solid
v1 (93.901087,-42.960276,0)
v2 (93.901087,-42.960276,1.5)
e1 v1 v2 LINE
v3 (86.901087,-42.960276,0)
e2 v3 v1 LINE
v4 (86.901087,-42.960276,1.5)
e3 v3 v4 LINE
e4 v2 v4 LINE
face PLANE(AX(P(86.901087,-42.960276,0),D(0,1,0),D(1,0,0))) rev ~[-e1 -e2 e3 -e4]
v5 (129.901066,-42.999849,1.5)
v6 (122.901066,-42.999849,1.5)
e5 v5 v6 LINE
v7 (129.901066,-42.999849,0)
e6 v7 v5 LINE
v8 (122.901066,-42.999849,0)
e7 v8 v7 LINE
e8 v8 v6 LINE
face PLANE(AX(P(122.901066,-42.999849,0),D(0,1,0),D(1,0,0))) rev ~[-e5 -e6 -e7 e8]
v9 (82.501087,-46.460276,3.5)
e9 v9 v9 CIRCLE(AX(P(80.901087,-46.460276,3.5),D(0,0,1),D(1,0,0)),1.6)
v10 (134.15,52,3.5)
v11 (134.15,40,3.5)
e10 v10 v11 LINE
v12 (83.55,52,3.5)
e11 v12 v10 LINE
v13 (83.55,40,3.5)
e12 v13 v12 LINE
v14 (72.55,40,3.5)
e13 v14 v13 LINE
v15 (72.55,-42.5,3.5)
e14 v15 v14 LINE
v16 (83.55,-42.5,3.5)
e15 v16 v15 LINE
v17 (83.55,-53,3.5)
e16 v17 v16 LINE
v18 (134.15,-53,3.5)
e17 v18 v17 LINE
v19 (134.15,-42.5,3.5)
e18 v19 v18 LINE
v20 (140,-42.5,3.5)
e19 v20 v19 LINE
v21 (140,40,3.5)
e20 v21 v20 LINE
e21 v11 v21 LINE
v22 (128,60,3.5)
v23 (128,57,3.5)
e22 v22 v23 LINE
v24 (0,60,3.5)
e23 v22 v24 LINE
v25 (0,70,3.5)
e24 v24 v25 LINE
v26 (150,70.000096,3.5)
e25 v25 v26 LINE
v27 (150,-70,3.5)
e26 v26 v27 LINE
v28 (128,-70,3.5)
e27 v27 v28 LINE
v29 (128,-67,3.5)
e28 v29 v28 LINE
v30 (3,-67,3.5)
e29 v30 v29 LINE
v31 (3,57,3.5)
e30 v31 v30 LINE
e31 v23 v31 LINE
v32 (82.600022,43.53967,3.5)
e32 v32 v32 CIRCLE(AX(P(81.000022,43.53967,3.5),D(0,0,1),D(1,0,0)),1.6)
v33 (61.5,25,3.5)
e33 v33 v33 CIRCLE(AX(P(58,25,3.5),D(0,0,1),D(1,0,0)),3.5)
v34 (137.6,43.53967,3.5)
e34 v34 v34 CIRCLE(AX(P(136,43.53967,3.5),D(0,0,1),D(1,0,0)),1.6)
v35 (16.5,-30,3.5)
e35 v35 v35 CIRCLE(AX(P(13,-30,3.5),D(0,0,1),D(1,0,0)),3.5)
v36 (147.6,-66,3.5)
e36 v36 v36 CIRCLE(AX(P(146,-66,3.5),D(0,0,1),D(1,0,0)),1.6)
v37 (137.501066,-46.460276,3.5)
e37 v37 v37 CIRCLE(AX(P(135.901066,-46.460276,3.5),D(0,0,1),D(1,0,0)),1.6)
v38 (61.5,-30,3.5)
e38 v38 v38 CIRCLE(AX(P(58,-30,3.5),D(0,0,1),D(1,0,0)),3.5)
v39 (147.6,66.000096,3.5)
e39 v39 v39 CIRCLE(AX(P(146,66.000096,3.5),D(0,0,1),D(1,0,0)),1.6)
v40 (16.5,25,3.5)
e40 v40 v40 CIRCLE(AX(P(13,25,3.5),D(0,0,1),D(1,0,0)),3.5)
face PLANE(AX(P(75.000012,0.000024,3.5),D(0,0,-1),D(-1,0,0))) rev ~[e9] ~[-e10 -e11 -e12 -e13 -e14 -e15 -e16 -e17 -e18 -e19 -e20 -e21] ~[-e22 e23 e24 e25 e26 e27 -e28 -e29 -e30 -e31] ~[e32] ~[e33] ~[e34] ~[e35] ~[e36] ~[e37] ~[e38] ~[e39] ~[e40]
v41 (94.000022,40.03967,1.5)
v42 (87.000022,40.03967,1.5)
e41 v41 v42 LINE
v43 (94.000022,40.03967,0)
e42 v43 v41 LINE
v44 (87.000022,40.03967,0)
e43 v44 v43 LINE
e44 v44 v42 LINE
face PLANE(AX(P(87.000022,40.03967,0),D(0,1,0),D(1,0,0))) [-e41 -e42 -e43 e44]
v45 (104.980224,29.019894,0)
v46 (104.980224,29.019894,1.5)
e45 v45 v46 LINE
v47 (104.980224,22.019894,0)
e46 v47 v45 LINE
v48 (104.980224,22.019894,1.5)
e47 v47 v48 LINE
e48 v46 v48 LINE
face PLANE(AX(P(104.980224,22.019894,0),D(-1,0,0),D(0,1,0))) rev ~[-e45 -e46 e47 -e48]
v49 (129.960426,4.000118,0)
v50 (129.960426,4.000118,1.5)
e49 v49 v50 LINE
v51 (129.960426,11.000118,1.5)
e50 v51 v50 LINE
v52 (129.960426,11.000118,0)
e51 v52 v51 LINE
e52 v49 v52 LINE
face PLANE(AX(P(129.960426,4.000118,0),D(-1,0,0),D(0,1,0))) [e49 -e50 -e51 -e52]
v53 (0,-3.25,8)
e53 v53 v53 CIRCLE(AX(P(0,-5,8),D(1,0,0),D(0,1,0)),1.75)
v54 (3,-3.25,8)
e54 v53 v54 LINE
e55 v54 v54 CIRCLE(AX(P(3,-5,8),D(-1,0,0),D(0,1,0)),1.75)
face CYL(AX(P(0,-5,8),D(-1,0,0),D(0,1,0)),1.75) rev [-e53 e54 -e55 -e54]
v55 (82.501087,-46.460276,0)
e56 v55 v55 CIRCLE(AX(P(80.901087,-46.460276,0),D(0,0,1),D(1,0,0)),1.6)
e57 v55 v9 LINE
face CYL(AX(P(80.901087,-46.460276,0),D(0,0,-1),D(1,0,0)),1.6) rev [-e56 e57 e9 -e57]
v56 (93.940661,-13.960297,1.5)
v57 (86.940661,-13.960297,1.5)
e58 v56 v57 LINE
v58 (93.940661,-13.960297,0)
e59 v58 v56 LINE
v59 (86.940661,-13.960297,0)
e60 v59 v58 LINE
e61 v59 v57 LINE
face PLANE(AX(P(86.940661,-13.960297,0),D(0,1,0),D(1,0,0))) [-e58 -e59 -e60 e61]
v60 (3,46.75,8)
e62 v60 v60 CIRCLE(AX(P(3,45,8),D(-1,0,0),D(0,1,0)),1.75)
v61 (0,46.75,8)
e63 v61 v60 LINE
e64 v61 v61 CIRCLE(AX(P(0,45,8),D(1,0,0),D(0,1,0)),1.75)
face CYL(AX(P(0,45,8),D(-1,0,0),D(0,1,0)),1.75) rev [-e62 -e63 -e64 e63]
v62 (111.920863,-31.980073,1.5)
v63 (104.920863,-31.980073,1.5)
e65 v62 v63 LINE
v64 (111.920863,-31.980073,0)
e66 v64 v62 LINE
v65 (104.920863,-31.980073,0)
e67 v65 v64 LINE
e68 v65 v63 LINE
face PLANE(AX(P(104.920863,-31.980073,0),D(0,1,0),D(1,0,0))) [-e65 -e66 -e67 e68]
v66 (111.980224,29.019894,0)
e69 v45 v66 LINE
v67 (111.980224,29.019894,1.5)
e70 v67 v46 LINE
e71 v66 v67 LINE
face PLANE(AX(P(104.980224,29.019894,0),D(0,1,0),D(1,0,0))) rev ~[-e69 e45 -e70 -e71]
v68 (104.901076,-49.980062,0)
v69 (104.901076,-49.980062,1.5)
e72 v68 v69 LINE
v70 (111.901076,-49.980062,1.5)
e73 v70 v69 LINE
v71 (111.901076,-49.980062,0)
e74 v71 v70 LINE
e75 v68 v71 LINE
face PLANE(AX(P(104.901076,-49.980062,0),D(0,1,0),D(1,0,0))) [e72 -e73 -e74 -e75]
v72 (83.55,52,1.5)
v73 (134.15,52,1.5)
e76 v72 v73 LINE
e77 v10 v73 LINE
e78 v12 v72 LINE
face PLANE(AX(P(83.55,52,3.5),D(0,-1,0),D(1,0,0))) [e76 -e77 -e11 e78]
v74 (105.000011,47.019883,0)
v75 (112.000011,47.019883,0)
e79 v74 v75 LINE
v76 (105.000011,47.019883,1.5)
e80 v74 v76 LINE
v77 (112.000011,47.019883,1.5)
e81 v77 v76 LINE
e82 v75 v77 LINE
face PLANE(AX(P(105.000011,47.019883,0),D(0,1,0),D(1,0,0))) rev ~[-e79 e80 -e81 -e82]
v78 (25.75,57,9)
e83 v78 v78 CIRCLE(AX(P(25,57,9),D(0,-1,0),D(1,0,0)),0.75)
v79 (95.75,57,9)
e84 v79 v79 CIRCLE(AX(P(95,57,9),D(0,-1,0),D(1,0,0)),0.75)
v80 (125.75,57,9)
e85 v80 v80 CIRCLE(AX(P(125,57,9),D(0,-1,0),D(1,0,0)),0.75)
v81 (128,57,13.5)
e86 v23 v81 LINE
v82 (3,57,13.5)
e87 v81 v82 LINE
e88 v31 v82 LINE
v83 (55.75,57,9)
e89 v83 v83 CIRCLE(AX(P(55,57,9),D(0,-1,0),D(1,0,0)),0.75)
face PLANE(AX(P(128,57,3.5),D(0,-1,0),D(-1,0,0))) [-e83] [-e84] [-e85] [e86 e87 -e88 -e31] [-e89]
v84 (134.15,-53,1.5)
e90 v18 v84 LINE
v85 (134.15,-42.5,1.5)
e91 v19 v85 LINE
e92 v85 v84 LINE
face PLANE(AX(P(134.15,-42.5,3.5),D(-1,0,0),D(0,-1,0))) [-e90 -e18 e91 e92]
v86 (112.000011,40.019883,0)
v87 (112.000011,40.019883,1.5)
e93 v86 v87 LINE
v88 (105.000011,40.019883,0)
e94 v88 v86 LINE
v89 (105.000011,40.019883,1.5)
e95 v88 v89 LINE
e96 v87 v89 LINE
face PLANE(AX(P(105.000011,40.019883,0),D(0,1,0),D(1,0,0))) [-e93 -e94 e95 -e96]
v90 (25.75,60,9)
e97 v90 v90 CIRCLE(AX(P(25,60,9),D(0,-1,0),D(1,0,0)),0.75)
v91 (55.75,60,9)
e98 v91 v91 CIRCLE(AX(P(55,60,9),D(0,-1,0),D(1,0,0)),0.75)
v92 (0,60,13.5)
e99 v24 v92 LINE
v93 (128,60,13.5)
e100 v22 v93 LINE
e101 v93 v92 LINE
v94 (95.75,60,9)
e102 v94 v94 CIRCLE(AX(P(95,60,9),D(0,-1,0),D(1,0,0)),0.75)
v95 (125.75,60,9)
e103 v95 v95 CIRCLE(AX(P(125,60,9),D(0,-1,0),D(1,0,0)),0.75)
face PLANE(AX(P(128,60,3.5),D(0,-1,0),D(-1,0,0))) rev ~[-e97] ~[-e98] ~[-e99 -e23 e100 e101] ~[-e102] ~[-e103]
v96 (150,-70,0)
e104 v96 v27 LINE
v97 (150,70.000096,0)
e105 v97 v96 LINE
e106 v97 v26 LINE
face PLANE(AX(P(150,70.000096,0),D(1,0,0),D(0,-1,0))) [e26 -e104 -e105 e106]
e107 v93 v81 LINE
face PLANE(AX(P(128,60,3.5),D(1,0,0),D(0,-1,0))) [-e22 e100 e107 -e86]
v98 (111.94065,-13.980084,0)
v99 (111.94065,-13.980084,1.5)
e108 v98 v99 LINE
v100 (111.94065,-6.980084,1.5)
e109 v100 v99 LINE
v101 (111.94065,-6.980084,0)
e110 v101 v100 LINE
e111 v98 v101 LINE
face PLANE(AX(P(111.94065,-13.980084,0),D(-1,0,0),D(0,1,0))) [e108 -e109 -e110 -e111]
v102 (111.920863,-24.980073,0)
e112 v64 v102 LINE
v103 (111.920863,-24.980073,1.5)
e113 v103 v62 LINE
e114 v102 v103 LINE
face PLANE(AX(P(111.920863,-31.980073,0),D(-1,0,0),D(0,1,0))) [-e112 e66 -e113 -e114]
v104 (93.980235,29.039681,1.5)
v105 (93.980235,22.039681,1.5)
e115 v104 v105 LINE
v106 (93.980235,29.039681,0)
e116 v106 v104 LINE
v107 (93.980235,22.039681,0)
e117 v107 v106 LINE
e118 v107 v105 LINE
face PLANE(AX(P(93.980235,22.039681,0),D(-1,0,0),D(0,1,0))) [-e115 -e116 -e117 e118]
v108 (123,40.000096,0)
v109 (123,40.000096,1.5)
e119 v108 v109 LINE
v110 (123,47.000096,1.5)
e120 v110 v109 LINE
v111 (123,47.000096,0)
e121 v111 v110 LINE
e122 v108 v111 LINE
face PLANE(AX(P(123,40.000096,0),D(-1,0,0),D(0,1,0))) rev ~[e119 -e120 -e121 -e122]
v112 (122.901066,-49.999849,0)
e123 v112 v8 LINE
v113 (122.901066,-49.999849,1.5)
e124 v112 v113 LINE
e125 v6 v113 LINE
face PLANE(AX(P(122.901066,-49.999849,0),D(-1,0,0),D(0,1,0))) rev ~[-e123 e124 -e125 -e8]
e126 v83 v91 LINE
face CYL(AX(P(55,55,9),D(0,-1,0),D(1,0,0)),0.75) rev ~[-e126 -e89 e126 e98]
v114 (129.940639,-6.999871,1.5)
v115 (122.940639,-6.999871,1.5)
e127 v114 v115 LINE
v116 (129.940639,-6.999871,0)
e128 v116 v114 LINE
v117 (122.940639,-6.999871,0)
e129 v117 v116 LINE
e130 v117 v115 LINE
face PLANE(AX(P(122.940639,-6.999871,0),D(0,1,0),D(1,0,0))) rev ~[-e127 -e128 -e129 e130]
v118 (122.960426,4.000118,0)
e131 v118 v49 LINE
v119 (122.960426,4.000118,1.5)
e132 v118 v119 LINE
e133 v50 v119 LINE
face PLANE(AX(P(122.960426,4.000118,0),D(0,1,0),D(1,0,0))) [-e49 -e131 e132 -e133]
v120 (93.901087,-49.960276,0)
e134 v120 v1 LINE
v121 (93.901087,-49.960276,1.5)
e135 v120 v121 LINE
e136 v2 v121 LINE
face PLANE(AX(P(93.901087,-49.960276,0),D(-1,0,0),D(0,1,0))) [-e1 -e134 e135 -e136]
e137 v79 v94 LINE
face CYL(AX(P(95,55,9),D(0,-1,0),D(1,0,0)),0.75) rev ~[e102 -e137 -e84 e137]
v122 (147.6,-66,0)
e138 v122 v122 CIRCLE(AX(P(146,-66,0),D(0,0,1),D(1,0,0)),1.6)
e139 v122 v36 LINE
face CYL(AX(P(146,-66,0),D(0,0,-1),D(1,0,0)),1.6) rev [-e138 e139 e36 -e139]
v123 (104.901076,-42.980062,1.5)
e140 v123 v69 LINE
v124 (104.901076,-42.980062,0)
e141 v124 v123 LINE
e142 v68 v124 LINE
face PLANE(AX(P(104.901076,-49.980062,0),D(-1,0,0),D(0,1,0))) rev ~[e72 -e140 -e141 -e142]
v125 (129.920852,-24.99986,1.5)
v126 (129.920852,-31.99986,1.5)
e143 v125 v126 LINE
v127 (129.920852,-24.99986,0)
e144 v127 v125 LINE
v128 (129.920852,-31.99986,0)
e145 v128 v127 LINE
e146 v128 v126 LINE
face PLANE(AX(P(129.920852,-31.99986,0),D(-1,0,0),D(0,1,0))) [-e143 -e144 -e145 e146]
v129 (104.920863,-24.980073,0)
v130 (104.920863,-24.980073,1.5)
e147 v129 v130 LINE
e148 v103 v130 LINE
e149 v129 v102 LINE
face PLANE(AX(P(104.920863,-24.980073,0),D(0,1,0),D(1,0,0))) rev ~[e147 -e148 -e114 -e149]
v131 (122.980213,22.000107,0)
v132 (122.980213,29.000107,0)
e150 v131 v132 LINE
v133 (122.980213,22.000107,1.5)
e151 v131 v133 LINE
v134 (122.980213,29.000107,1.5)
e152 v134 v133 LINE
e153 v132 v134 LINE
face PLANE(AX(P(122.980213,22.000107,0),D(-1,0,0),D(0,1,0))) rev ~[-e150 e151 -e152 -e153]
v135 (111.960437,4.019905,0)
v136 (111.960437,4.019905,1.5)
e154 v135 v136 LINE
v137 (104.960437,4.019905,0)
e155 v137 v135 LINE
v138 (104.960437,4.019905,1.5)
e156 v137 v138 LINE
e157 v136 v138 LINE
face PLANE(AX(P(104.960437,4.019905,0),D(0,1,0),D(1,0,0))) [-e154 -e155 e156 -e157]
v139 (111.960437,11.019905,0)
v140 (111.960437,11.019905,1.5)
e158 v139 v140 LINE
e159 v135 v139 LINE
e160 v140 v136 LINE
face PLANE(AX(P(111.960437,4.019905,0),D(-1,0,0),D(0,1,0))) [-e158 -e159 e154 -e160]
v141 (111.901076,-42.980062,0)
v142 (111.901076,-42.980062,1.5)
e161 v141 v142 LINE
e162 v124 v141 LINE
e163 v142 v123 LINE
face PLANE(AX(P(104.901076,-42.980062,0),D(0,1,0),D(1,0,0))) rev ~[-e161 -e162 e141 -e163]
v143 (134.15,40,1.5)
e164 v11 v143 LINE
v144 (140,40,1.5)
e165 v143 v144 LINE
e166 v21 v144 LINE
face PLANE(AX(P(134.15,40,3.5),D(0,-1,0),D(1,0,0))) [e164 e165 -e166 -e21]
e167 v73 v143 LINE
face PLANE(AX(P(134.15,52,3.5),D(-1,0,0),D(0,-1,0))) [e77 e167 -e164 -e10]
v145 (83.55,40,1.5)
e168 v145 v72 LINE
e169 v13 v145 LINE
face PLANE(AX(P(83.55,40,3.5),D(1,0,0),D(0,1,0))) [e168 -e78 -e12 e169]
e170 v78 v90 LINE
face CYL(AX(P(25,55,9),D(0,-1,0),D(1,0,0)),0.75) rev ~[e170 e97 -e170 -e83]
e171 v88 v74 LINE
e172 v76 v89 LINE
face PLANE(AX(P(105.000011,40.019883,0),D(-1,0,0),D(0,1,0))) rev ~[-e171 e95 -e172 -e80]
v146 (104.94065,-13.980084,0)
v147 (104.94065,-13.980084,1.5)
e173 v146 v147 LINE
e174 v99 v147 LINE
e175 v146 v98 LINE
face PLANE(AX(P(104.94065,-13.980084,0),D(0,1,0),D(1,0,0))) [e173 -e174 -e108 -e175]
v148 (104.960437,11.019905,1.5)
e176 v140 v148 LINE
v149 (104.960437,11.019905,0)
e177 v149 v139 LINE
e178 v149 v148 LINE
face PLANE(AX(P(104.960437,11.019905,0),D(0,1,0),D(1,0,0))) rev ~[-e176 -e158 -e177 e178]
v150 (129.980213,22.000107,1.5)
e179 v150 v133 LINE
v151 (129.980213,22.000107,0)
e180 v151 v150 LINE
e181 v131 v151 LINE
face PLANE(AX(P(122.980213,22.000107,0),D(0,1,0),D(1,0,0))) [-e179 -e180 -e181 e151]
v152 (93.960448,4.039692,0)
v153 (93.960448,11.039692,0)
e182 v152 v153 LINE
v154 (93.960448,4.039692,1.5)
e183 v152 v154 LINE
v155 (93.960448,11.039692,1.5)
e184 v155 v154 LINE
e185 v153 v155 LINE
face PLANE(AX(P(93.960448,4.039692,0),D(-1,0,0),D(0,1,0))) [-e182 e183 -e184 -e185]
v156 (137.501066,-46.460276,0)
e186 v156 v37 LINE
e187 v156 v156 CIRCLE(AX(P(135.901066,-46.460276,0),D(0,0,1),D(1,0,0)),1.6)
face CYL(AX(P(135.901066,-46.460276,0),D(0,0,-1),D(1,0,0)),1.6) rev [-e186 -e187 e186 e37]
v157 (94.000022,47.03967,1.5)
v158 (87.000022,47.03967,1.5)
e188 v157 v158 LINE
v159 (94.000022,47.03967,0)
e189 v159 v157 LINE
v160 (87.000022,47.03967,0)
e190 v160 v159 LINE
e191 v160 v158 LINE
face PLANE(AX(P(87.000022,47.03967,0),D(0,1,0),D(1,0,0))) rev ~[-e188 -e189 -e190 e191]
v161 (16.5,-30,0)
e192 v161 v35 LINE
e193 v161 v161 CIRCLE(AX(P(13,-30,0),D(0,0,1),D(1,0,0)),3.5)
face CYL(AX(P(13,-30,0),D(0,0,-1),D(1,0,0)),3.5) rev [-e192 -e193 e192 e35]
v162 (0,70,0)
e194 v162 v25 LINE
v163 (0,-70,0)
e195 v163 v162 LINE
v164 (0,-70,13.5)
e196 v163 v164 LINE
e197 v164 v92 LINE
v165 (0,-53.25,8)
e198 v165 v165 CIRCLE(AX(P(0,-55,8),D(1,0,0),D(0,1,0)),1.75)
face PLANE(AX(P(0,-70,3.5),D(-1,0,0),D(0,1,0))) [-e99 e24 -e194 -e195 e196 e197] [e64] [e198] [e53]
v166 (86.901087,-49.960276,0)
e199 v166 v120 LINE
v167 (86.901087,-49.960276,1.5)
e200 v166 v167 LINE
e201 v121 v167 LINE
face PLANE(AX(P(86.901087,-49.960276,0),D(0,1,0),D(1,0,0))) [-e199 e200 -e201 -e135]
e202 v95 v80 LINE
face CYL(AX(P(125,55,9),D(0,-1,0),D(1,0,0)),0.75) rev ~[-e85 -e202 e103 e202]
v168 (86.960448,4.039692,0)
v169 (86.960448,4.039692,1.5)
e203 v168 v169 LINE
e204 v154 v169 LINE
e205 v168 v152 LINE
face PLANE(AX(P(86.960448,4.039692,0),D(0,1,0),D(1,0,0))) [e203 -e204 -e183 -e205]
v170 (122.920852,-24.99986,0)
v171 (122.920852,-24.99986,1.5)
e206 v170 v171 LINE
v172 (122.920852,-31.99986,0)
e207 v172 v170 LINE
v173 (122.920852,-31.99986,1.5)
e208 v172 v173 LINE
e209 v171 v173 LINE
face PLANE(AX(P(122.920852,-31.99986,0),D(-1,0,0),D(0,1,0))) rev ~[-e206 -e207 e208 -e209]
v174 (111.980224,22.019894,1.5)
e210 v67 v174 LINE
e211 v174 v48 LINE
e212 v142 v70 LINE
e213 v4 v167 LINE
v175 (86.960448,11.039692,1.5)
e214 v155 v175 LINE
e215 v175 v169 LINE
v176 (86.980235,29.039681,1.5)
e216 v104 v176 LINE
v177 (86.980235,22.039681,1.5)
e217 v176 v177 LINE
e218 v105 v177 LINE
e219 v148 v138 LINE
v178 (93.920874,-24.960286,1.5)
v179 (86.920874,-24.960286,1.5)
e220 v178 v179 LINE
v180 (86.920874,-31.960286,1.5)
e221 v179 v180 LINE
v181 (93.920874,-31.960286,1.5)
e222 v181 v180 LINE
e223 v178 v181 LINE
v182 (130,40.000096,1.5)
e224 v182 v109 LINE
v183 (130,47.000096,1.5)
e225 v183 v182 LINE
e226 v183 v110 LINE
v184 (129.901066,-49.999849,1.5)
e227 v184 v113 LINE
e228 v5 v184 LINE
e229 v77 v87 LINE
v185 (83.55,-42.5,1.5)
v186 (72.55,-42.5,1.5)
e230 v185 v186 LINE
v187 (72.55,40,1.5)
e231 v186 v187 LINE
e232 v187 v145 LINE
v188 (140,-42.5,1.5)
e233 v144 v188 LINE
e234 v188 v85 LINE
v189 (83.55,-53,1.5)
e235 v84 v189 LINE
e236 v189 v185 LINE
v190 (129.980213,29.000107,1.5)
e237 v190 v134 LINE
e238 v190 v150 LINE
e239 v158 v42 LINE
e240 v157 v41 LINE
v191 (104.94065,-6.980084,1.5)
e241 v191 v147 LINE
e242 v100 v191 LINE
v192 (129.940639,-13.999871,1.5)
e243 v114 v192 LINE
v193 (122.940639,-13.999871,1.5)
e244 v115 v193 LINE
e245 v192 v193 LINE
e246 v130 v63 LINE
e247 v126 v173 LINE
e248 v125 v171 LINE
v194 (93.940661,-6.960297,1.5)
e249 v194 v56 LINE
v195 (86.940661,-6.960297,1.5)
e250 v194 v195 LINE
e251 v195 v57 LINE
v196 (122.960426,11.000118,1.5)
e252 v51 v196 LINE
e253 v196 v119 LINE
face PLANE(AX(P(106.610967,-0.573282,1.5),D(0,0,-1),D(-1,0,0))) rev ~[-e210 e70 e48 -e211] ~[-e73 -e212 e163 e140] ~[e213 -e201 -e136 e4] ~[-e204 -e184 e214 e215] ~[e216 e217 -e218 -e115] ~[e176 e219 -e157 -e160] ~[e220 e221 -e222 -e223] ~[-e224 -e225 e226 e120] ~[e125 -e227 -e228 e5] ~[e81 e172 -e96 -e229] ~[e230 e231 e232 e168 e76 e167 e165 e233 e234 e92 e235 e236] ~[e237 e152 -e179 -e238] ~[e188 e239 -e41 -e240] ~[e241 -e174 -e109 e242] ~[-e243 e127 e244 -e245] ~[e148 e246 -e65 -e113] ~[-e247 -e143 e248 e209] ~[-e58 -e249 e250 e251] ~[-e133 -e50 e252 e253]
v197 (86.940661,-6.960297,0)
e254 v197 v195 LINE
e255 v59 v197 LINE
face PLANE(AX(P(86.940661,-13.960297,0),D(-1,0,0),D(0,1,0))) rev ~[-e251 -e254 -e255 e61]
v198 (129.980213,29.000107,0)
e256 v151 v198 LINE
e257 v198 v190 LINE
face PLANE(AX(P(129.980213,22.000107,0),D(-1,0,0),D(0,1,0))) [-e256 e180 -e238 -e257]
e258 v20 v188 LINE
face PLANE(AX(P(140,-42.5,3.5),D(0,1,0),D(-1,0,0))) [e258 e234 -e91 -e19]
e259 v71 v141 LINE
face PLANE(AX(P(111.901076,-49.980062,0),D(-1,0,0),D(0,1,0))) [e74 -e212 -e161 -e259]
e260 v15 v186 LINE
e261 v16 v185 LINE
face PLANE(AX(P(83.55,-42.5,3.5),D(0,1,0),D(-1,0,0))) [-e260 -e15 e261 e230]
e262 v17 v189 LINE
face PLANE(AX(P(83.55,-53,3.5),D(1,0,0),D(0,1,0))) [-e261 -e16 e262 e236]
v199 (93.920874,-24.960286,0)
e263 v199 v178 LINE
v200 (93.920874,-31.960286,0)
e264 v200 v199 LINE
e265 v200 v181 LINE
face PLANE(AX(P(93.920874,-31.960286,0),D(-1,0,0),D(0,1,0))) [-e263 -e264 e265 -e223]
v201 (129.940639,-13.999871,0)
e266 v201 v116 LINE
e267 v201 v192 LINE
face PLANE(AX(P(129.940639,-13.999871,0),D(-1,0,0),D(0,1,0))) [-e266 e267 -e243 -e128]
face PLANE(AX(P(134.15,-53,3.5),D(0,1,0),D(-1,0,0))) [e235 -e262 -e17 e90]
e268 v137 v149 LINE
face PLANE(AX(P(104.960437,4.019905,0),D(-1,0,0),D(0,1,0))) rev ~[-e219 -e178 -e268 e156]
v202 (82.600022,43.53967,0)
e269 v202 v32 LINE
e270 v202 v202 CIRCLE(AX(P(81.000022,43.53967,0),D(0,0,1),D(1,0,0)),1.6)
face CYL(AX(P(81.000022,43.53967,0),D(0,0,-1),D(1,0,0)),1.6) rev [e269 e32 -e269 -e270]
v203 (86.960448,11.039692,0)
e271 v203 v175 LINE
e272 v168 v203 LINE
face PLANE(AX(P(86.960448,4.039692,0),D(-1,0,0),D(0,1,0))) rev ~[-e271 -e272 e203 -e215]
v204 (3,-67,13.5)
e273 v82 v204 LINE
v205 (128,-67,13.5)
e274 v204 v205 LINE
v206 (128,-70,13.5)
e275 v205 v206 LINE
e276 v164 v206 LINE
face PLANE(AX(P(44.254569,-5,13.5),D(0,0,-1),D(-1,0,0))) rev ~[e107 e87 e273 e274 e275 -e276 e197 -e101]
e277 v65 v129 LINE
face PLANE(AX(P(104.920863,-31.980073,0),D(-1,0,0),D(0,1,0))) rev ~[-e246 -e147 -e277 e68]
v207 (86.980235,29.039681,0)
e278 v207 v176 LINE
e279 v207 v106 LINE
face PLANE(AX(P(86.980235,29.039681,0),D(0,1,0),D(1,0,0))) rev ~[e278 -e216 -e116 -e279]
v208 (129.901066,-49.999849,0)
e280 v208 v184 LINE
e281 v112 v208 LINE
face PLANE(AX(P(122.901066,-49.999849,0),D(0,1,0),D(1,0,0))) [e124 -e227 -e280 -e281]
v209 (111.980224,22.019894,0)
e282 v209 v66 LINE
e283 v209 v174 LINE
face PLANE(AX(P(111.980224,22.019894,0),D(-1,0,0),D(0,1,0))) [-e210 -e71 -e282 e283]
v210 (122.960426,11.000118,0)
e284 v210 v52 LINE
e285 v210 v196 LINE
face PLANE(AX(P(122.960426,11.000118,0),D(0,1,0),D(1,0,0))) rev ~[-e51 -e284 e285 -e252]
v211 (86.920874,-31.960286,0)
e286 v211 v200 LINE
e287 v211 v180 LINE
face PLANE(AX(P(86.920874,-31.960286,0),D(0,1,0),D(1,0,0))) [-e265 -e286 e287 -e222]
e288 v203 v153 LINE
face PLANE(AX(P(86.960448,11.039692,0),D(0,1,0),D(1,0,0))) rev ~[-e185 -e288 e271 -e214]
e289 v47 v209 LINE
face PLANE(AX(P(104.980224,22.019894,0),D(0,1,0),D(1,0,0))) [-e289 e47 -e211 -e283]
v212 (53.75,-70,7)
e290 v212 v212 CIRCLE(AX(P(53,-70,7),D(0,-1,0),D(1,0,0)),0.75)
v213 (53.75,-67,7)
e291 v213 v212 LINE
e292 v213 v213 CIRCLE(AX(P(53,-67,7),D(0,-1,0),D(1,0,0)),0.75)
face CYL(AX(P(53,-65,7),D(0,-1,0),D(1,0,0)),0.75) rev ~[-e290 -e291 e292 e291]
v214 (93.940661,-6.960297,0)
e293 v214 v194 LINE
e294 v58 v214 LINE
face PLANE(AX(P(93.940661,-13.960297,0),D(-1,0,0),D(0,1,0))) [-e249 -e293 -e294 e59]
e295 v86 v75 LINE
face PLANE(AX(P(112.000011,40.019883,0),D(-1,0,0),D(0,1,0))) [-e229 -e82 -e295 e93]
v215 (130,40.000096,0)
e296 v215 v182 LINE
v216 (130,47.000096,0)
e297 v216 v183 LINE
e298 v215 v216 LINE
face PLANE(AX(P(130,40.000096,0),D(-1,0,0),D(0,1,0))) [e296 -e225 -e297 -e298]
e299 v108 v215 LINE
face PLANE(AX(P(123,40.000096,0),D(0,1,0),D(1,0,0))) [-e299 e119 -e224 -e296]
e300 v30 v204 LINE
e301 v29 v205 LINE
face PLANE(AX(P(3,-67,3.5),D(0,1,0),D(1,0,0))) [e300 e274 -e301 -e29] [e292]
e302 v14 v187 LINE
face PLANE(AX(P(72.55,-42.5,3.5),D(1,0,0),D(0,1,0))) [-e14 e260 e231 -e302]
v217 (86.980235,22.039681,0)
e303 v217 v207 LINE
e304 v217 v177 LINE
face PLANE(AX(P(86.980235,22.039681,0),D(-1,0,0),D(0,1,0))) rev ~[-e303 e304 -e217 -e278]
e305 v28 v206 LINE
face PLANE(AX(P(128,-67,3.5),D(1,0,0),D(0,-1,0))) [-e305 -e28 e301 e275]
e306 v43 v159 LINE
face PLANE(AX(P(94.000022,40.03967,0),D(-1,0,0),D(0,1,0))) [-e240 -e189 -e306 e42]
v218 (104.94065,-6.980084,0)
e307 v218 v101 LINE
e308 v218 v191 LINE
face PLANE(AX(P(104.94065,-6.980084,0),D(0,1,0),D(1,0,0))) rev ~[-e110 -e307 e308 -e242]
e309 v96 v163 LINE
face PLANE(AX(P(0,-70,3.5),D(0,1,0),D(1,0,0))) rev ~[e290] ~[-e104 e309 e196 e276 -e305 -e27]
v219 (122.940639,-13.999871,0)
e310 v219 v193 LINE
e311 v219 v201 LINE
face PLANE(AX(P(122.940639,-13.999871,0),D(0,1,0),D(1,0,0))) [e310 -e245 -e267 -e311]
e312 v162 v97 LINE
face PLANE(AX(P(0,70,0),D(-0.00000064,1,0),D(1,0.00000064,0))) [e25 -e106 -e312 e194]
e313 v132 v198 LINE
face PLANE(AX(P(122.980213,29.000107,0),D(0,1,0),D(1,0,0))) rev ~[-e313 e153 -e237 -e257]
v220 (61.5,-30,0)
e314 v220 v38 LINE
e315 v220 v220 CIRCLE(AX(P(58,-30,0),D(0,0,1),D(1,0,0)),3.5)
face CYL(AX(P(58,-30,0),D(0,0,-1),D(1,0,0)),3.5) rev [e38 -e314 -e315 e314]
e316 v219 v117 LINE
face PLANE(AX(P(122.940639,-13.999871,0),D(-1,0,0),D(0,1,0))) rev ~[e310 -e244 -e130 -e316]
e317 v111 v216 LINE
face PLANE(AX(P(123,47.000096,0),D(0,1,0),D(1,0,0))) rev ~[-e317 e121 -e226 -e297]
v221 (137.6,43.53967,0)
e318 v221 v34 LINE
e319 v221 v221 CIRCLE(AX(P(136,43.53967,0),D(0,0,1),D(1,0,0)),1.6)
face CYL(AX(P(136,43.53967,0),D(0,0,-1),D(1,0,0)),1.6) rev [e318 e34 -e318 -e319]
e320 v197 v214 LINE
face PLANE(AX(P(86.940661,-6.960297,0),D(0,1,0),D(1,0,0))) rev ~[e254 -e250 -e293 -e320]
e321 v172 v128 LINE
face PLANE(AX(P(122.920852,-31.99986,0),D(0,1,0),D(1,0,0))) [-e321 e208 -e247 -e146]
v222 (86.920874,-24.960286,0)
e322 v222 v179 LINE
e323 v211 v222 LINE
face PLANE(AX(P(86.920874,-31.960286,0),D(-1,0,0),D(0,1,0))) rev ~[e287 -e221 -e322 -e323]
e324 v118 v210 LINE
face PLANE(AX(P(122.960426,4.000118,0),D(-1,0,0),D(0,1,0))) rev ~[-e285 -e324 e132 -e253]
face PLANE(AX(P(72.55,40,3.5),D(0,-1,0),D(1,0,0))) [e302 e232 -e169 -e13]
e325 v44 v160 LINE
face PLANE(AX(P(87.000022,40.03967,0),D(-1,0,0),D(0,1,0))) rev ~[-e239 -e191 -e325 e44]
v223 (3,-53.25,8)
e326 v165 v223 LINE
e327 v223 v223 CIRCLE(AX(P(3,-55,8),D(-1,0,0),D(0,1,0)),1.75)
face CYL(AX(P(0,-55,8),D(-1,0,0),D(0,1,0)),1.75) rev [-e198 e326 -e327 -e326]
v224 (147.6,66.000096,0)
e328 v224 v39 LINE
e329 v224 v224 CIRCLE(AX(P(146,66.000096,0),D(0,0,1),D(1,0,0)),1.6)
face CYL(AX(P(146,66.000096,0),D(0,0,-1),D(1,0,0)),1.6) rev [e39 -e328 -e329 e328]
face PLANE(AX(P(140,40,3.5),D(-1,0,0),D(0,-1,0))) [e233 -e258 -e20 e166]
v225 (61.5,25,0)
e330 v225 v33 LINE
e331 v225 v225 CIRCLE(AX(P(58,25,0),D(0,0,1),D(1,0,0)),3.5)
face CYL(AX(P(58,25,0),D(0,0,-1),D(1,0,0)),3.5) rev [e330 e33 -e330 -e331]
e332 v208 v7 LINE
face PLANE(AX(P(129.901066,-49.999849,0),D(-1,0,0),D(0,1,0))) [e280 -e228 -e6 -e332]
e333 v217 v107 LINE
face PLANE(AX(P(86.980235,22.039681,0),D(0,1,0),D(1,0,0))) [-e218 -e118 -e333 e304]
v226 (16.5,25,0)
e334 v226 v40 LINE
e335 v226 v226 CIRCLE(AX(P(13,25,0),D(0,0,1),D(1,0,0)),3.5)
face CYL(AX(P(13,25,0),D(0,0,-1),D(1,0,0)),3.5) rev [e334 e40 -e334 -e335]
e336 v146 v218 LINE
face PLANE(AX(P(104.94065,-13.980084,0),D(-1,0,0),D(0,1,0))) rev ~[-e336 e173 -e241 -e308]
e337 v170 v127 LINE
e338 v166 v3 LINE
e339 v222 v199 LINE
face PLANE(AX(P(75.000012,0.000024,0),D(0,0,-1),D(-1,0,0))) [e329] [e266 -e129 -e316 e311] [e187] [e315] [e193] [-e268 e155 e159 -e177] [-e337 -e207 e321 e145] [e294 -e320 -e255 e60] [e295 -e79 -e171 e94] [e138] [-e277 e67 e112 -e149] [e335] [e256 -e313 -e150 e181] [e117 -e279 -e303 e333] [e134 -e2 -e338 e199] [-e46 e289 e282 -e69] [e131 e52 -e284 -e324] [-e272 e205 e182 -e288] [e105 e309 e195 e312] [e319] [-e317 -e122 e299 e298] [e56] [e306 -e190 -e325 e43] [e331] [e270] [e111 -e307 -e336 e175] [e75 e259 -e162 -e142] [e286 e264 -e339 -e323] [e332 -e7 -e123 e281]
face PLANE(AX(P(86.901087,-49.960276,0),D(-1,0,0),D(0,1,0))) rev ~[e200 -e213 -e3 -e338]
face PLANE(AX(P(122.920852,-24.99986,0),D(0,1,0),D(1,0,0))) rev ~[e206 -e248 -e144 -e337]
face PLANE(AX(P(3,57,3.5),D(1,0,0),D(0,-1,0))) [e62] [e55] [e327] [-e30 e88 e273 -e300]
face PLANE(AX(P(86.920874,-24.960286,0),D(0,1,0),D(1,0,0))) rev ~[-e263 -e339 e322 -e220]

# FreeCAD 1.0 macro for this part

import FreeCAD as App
import Part
import Sketcher
from FreeCAD import Vector
Q = App.Units.Quantity


def add_polygon(sketch, points):
    """Adds a closed chain of lines whose ends are joined by coincident constraints."""
    first, n = sketch.GeometryCount, len(points)
    for a, b in zip(points, points[1:] + points[:1]):
        sketch.addGeometry(Part.LineSegment(App.Vector(*a, 0), App.Vector(*b, 0)), False)
    for i in range(n):
        sketch.addConstraint(Sketcher.Constraint("Coincident", first + i, 2, first + (i + 1) % n, 1))

doc = App.newDocument("Part")
params = doc.addObject("Spreadsheet::Sheet", "Params")
for row, (alias, value) in enumerate([
    ("sketch1_diameter", "7 mm"),
    ("sketch1_diameter2", "3.2 mm"),
    ("sketch1_width", "150 mm"),
    ("sketch1_width2", "7 mm"),
    ("sketch1_height", "140 mm"),
    ("pad1_length", "3.5 mm"),
    ("sketch2_width", "128 mm"),
    ("sketch2_width2", "125 mm"),
    ("sketch2_height", "130 mm"),
    ("sketch2_height2", "3 mm"),
    ("pad2_length", "10 mm"),
    ("sketch3_diameter", "1.5 mm"),
    ("pocket1_length", "15 mm"),
    ("sketch4_diameter", "1.5 mm"),
    ("pocket2_length", "20 mm"),
    ("sketch5_diameter", "3.5 mm"),
    ("pocket3_length", "5 mm"),
    ("sketch6_width", "11 mm"),
    ("sketch6_height", "12 mm"),
    ("sketch6_width2", "50.6 mm"),
    ("sketch6_height2", "82.5 mm"),
    ("sketch6_height3", "10.5 mm"),
    ("pocket4_length", "2 mm"),
], start=1):
    params.set(f"A{row}", alias)
    params.set(f"B{row}", "=" + value)
    params.setAlias(f"B{row}", alias)

body = doc.addObject("PartDesign::Body", "Body")

sketch1 = body.newObject("Sketcher::SketchObject", "Sketch")
sketch1.AttachmentSupport = (doc.getObject("XY_Plane"), [""])
sketch1.MapMode = "FlatFace"
add_polygon(sketch1, [(150, 70), (0, 70), (0, -70), (150, -70)])
sketch1.addGeometry(Part.Circle(Vector(146, -66, 0), Vector(0, 0, 1), 1.6), False)
sketch1.addGeometry(Part.Circle(Vector(135.9, -46.5, 0), Vector(0, 0, 1), 1.6), False)
add_polygon(sketch1, [(122.9, -50), (122.9, -43), (129.9, -43), (129.9, -50)])
add_polygon(sketch1, [(104.9, -50), (104.9, -43), (111.9, -43), (111.9, -50)])
add_polygon(sketch1, [(86.9, -50), (86.9, -43), (93.9, -43), (93.9, -50)])
sketch1.addGeometry(Part.Circle(Vector(80.9, -46.5, 0), Vector(0, 0, 1), 1.6), False)
add_polygon(sketch1, [(122.9, -32), (122.9, -25), (129.9, -25), (129.9, -32)])
add_polygon(sketch1, [(122.9, -14), (122.9, -7), (129.9, -7), (129.9, -14)])
add_polygon(sketch1, [(104.9, -32), (104.9, -25), (111.9, -25), (111.9, -32)])
add_polygon(sketch1, [(86.9, -32), (86.9, -25), (93.9, -25), (93.9, -32)])
add_polygon(sketch1, [(104.9, -14), (104.9, -7), (111.9, -7), (111.9, -14)])
add_polygon(sketch1, [(86.9, -14), (86.9, -7), (93.9, -7), (93.9, -14)])
sketch1.addGeometry(Part.Circle(Vector(58, -30, 0), Vector(0, 0, 1), 3.5), False)
sketch1.addGeometry(Part.Circle(Vector(13, -30, 0), Vector(0, 0, 1), 3.5), False)
add_polygon(sketch1, [(123, 4), (123, 11), (130, 11), (130, 4)])
add_polygon(sketch1, [(123, 22), (123, 29), (130, 29), (130, 22)])
add_polygon(sketch1, [(105, 4), (105, 11), (112, 11), (112, 4)])
add_polygon(sketch1, [(87, 4), (87, 11), (94, 11), (94, 4)])
add_polygon(sketch1, [(105, 22), (105, 29), (112, 29), (112, 22)])
add_polygon(sketch1, [(87, 22), (87, 29), (94, 29), (94, 22)])
sketch1.addGeometry(Part.Circle(Vector(136, 43.5, 0), Vector(0, 0, 1), 1.6), False)
add_polygon(sketch1, [(123, 40), (123, 47), (130, 47), (130, 40)])
sketch1.addGeometry(Part.Circle(Vector(146, 66, 0), Vector(0, 0, 1), 1.6), False)
add_polygon(sketch1, [(105, 40), (105, 47), (112, 47), (112, 40)])
add_polygon(sketch1, [(87, 40), (87, 47), (94, 47), (94, 40)])
sketch1.addGeometry(Part.Circle(Vector(81, 43.5, 0), Vector(0, 0, 1), 1.6), False)
sketch1.addGeometry(Part.Circle(Vector(58, 25, 0), Vector(0, 0, 1), 3.5), False)
sketch1.addGeometry(Part.Circle(Vector(13, 25, 0), Vector(0, 0, 1), 3.5), False)
sketch1.addConstraint(Sketcher.Constraint("Vertical", 1))
sketch1.addConstraint(Sketcher.Constraint("Horizontal", 2))
sketch1.addConstraint(Sketcher.Constraint("Vertical", 3))
sketch1.addConstraint(Sketcher.Constraint("Vertical", 6))
sketch1.addConstraint(Sketcher.Constraint("Horizontal", 7))
sketch1.addConstraint(Sketcher.Constraint("Vertical", 8))
sketch1.addConstraint(Sketcher.Constraint("Horizontal", 9))
sketch1.addConstraint(Sketcher.Constraint("Vertical", 10))
sketch1.addConstraint(Sketcher.Constraint("Horizontal", 11))
sketch1.addConstraint(Sketcher.Constraint("Vertical", 12))
sketch1.addConstraint(Sketcher.Constraint("Horizontal", 13))
sketch1.addConstraint(Sketcher.Constraint("Vertical", 14))
sketch1.addConstraint(Sketcher.Constraint("Horizontal", 15))
sketch1.addConstraint(Sketcher.Constraint("Vertical", 16))
sketch1.addConstraint(Sketcher.Constraint("Horizontal", 17))
sketch1.addConstraint(Sketcher.Constraint("Vertical", 19))
sketch1.addConstraint(Sketcher.Constraint("Horizontal", 20))
sketch1.addConstraint(Sketcher.Constraint("Vertical", 21))
sketch1.addConstraint(Sketcher.Constraint("Horizontal", 22))
sketch1.addConstraint(Sketcher.Constraint("Vertical", 23))
sketch1.addConstraint(Sketcher.Constraint("Horizontal", 24))
sketch1.addConstraint(Sketcher.Constraint("Vertical", 25))
sketch1.addConstraint(Sketcher.Constraint("Horizontal", 26))
sketch1.addConstraint(Sketcher.Constraint("Vertical", 27))
sketch1.addConstraint(Sketcher.Constraint("Horizontal", 28))
sketch1.addConstraint(Sketcher.Constraint("Vertical", 29))
sketch1.addConstraint(Sketcher.Constraint("Horizontal", 30))
sketch1.addConstraint(Sketcher.Constraint("Vertical", 31))
sketch1.addConstraint(Sketcher.Constraint("Horizontal", 32))
sketch1.addConstraint(Sketcher.Constraint("Vertical", 33))
sketch1.addConstraint(Sketcher.Constraint("Horizontal", 34))
sketch1.addConstraint(Sketcher.Constraint("Vertical", 35))
sketch1.addConstraint(Sketcher.Constraint("Horizontal", 36))
sketch1.addConstraint(Sketcher.Constraint("Vertical", 37))
sketch1.addConstraint(Sketcher.Constraint("Horizontal", 38))
sketch1.addConstraint(Sketcher.Constraint("Vertical", 39))
sketch1.addConstraint(Sketcher.Constraint("Horizontal", 40))
sketch1.addConstraint(Sketcher.Constraint("Vertical", 41))
sketch1.addConstraint(Sketcher.Constraint("Horizontal", 42))
sketch1.addConstraint(Sketcher.Constraint("Vertical", 45))
sketch1.addConstraint(Sketcher.Constraint("Horizontal", 46))
sketch1.addConstraint(Sketcher.Constraint("Vertical", 47))
sketch1.addConstraint(Sketcher.Constraint("Horizontal", 48))
sketch1.addConstraint(Sketcher.Constraint("Vertical", 49))
sketch1.addConstraint(Sketcher.Constraint("Horizontal", 50))
sketch1.addConstraint(Sketcher.Constraint("Vertical", 51))
sketch1.addConstraint(Sketcher.Constraint("Horizontal", 52))
sketch1.addConstraint(Sketcher.Constraint("Vertical", 53))
sketch1.addConstraint(Sketcher.Constraint("Horizontal", 54))
sketch1.addConstraint(Sketcher.Constraint("Vertical", 55))
sketch1.addConstraint(Sketcher.Constraint("Horizontal", 56))
sketch1.addConstraint(Sketcher.Constraint("Vertical", 57))
sketch1.addConstraint(Sketcher.Constraint("Horizontal", 58))
sketch1.addConstraint(Sketcher.Constraint("Vertical", 59))
sketch1.addConstraint(Sketcher.Constraint("Horizontal", 60))
sketch1.addConstraint(Sketcher.Constraint("Vertical", 61))
sketch1.addConstraint(Sketcher.Constraint("Horizontal", 62))
sketch1.addConstraint(Sketcher.Constraint("Vertical", 63))
sketch1.addConstraint(Sketcher.Constraint("Horizontal", 64))
sketch1.addConstraint(Sketcher.Constraint("Vertical", 65))
sketch1.addConstraint(Sketcher.Constraint("Horizontal", 66))
sketch1.addConstraint(Sketcher.Constraint("Vertical", 67))
sketch1.addConstraint(Sketcher.Constraint("Horizontal", 68))
sketch1.addConstraint(Sketcher.Constraint("Vertical", 70))
sketch1.addConstraint(Sketcher.Constraint("Horizontal", 71))
sketch1.addConstraint(Sketcher.Constraint("Vertical", 72))
sketch1.addConstraint(Sketcher.Constraint("Horizontal", 73))
sketch1.addConstraint(Sketcher.Constraint("Vertical", 75))
sketch1.addConstraint(Sketcher.Constraint("Horizontal", 76))
sketch1.addConstraint(Sketcher.Constraint("Vertical", 77))
sketch1.addConstraint(Sketcher.Constraint("Horizontal", 78))
sketch1.addConstraint(Sketcher.Constraint("Vertical", 79))
sketch1.addConstraint(Sketcher.Constraint("Horizontal", 80))
sketch1.addConstraint(Sketcher.Constraint("Vertical", 81))
sketch1.addConstraint(Sketcher.Constraint("Horizontal", 82))
sketch1.addConstraint(Sketcher.Constraint("Equal", 4, 5))
sketch1.addConstraint(Sketcher.Constraint("Equal", 5, 18))
sketch1.addConstraint(Sketcher.Constraint("Equal", 43, 44))
sketch1.addConstraint(Sketcher.Constraint("Equal", 18, 69))
sketch1.addConstraint(Sketcher.Constraint("Equal", 69, 74))
sketch1.addConstraint(Sketcher.Constraint("Equal", 74, 83))
sketch1.addConstraint(Sketcher.Constraint("Equal", 44, 84))
sketch1.addConstraint(Sketcher.Constraint("Equal", 84, 85))
sketch1.addConstraint(Sketcher.Constraint("Symmetric", 0, 2, 1, 2, -1, 1))
sketch1.addConstraint(Sketcher.Constraint("Horizontal", 5, 3, 18, 3))
sketch1.addConstraint(Sketcher.Constraint("Horizontal", 43, 3, 44, 3))
sketch1.addConstraint(Sketcher.Constraint("Horizontal", 69, 3, 83, 3))
sketch1.addConstraint(Sketcher.Constraint("Horizontal", 84, 3, 85, 3))
sketch1.addConstraint(Sketcher.Constraint("Vertical", 4, 3, 74, 3))
sketch1.addConstraint(Sketcher.Constraint("Vertical", 43, 3, 84, 3))
sketch1.addConstraint(Sketcher.Constraint("Vertical", 44, 3, 85, 3))
sketch1.addConstraint(Sketcher.Constraint("Equal", 9, 11))
sketch1.addConstraint(Sketcher.Constraint("Equal", 13, 15))
sketch1.addConstraint(Sketcher.Constraint("Equal", 17, 20))
sketch1.addConstraint(Sketcher.Constraint("Equal", 22, 24))
sketch1.addConstraint(Sketcher.Constraint("Equal", 26, 28))
sketch1.addConstraint(Sketcher.Constraint("Equal", 30, 32))
sketch1.addConstraint(Sketcher.Constraint("Equal", 34, 36))
sketch1.addConstraint(Sketcher.Constraint("Equal", 38, 40))
sketch1.addConstraint(Sketcher.Constraint("Equal", 42, 46))
sketch1.addConstraint(Sketcher.Constraint("Equal", 48, 50))
sketch1.addConstraint(Sketcher.Constraint("Equal", 52, 54))
sketch1.addConstraint(Sketcher.Constraint("Equal", 56, 58))
sketch1.addConstraint(Sketcher.Constraint("Equal", 60, 62))
sketch1.addConstraint(Sketcher.Constraint("Equal", 64, 66))
sketch1.addConstraint(Sketcher.Constraint("Equal", 68, 71))
sketch1.addConstraint(Sketcher.Constraint("Equal", 73, 76))
sketch1.addConstraint(Sketcher.Constraint("Equal", 78, 80))
sketch1.addConstraint(Sketcher.Constraint("Equal", 82, 6))
sketch1.addConstraint(Sketcher.Constraint("Equal", 8, 10))
sketch1.addConstraint(Sketcher.Constraint("Equal", 12, 14))
sketch1.addConstraint(Sketcher.Constraint("Equal", 16, 19))
sketch1.addConstraint(Sketcher.Constraint("Equal", 21, 23))
sketch1.addConstraint(Sketcher.Constraint("Equal", 25, 27))
sketch1.addConstraint(Sketcher.Constraint("Equal", 29, 31))
sketch1.addConstraint(Sketcher.Constraint("Equal", 33, 35))
sketch1.addConstraint(Sketcher.Constraint("Equal", 37, 39))
sketch1.addConstraint(Sketcher.Constraint("Equal", 41, 45))
sketch1.addConstraint(Sketcher.Constraint("Equal", 47, 49))
sketch1.addConstraint(Sketcher.Constraint("Equal", 51, 53))
sketch1.addConstraint(Sketcher.Constraint("Equal", 55, 57))
sketch1.addConstraint(Sketcher.Constraint("Equal", 59, 61))
sketch1.addConstraint(Sketcher.Constraint("Equal", 63, 65))
sketch1.addConstraint(Sketcher.Constraint("Equal", 67, 70))
sketch1.addConstraint(Sketcher.Constraint("Equal", 72, 75))
sketch1.addConstraint(Sketcher.Constraint("Equal", 77, 79))
sketch1.addConstraint(Sketcher.Constraint("Diameter", 43, Q("7 mm")))
sketch1.addConstraint(Sketcher.Constraint("Diameter", 4, Q("3.2 mm")))
sketch1.addConstraint(Sketcher.Constraint("DistanceX", 2, 1, 2, 2, Q("150 mm")))
sketch1.addConstraint(Sketcher.Constraint("DistanceX", 7, 1, 7, 2, Q("7 mm")))
sketch1.addConstraint(Sketcher.Constraint("DistanceY", 1, 2, 1, 1, Q("140 mm")))
sketch1.addConstraint(Sketcher.Constraint("DistanceX", -1, 1, 4, 3, Q("146 mm")))
sketch1.addConstraint(Sketcher.Constraint("DistanceY", 4, 3, -1, 1, Q("66 mm")))
sketch1.addConstraint(Sketcher.Constraint("DistanceX", -1, 1, 43, 3, Q("58 mm")))
sketch1.addConstraint(Sketcher.Constraint("DistanceY", 43, 3, -1, 1, Q("30 mm")))
sketch1.addConstraint(Sketcher.Constraint("DistanceX", -1, 1, 44, 3, Q("13 mm")))
sketch1.addConstraint(Sketcher.Constraint("DistanceX", -1, 1, 69, 3, Q("136 mm")))
sketch1.addConstraint(Sketcher.Constraint("DistanceY", -1, 1, 84, 3, Q("25 mm")))
sketch1.addConstraint(Sketcher.Constraint("DistanceX", -1, 1, 70, 2, Q("123 mm")))
sketch1.addConstraint(Sketcher.Constraint("DistanceY", 3, 1, 3, 2, Q("140.000096 mm")))
sketch1.addConstraint(Sketcher.Constraint("DistanceY", -1, 1, 69, 3, Q("43.53967 mm")))
sketch1.addConstraint(Sketcher.Constraint("DistanceX", -1, 1, 83, 3, Q("81.000022 mm")))
sketch1.addConstraint(Sketcher.Constraint("DistanceY", 6, 2, -1, 1, Q("42.999849 mm")))
sketch1.addConstraint(Sketcher.Constraint("DistanceY", 10, 2, -1, 1, Q("42.980062 mm")))
sketch1.addConstraint(Sketcher.Constraint("DistanceX", -1, 1, 19, 2, Q("122.920852 mm")))
sketch1.addConstraint(Sketcher.Constraint("DistanceY", 19, 2, -1, 1, Q("24.99986 mm")))
sketch1.addConstraint(Sketcher.Constraint("DistanceX", -1, 1, 23, 2, Q("122.940639 mm")))
sketch1.addConstraint(Sketcher.Constraint("DistanceY", 23, 2, -1, 1, Q("6.999871 mm")))
sketch1.addConstraint(Sketcher.Constraint("DistanceX", -1, 1, 35, 2, Q("104.94065 mm")))
sketch1.addConstraint(Sketcher.Constraint("DistanceX", -1, 1, 39, 2, Q("86.940661 mm")))
sketch1.addConstraint(Sketcher.Constraint("DistanceX", -1, 1, 57, 2, Q("86.960448 mm")))
sketch1.addConstraint(Sketcher.Constraint("DistanceY", -1, 1, 59, 2, Q("4.039692 mm")))
sketch1.addConstraint(Sketcher.Constraint("DistanceY", -1, 1, 65, 2, Q("29.039681 mm")))
sketch1.addConstraint(Sketcher.Constraint("DistanceX", -1, 1, 75, 2, Q("105.000011 mm")))
sketch1.addConstraint(Sketcher.Constraint("DistanceX", -1, 1, 79, 2, Q("87.000022 mm")))
sketch1.addConstraint(Sketcher.Constraint("DistanceY", -1, 1, 79, 2, Q("47.03967 mm")))
sketch1.addConstraint(Sketcher.Constraint("DistanceX", -1, 1, 5, 3, Q("135.901066 mm")))
sketch1.addConstraint(Sketcher.Constraint("DistanceY", 5, 3, -1, 1, Q("46.460276 mm")))
sketch1.addConstraint(Sketcher.Constraint("DistanceX", -1, 1, 18, 3, Q("80.901087 mm")))
sketch1.addConstraint(Sketcher.Constraint("DistanceY", -1, 1, 74, 3, Q("66.000096 mm")))
sketch1.addConstraint(Sketcher.Constraint("DistanceX", -1, 1, 6, 2, Q("122.901066 mm")))
sketch1.addConstraint(Sketcher.Constraint("DistanceX", -1, 1, 10, 2, Q("104.901076 mm")))
sketch1.addConstraint(Sketcher.Constraint("DistanceX", -1, 1, 14, 2, Q("86.901087 mm")))
sketch1.addConstraint(Sketcher.Constraint("DistanceY", 14, 2, -1, 1, Q("42.960276 mm")))
sketch1.addConstraint(Sketcher.Constraint("DistanceX", -1, 1, 27, 2, Q("104.920863 mm")))
sketch1.addConstraint(Sketcher.Constraint("DistanceY", 27, 2, -1, 1, Q("24.980073 mm")))
sketch1.addConstraint(Sketcher.Constraint("DistanceX", -1, 1, 31, 2, Q("86.920874 mm")))
sketch1.addConstraint(Sketcher.Constraint("DistanceY", 31, 2, -1, 1, Q("24.960286 mm")))
sketch1.addConstraint(Sketcher.Constraint("DistanceY", 35, 2, -1, 1, Q("6.980084 mm")))
sketch1.addConstraint(Sketcher.Constraint("DistanceY", 39, 2, -1, 1, Q("6.960297 mm")))
sketch1.addConstraint(Sketcher.Constraint("DistanceX", -1, 1, 45, 2, Q("122.960426 mm")))
sketch1.addConstraint(Sketcher.Constraint("DistanceY", -1, 1, 45, 2, Q("11.000118 mm")))
sketch1.addConstraint(Sketcher.Constraint("DistanceX", -1, 1, 49, 2, Q("122.980213 mm")))
sketch1.addConstraint(Sketcher.Constraint("DistanceY", -1, 1, 49, 2, Q("29.000107 mm")))
sketch1.addConstraint(Sketcher.Constraint("DistanceX", -1, 1, 53, 2, Q("104.960437 mm")))
sketch1.addConstraint(Sketcher.Constraint("DistanceY", -1, 1, 53, 2, Q("11.019905 mm")))
sketch1.addConstraint(Sketcher.Constraint("DistanceX", -1, 1, 61, 2, Q("104.980224 mm")))
sketch1.addConstraint(Sketcher.Constraint("DistanceY", -1, 1, 61, 2, Q("29.019894 mm")))
sketch1.addConstraint(Sketcher.Constraint("DistanceX", -1, 1, 65, 2, Q("86.980235 mm")))
sketch1.addConstraint(Sketcher.Constraint("DistanceY", -1, 1, 70, 2, Q("47.000096 mm")))
sketch1.addConstraint(Sketcher.Constraint("DistanceY", -1, 1, 75, 2, Q("47.019883 mm")))
sketch1.setExpression("Constraints[202]", "Params.sketch1_diameter")
sketch1.setExpression("Constraints[203]", "Params.sketch1_diameter2")
sketch1.setExpression("Constraints[204]", "Params.sketch1_width")
sketch1.setExpression("Constraints[205]", "Params.sketch1_width2")
sketch1.setExpression("Constraints[206]", "Params.sketch1_height")
pad1 = body.newObject("PartDesign::Pad", "Pad")
pad1.Profile = sketch1
pad1.setExpression("Length", "Params.pad1_length")

sketch2 = body.newObject("Sketcher::SketchObject", "Sketch001")
sketch2.AttachmentSupport = (doc.getObject("XY_Plane"), [""])
sketch2.MapMode = "FlatFace"
sketch2.AttachmentOffset = App.Placement(Vector(0, 0, 3.5), App.Rotation())
add_polygon(sketch2, [(128, 60), (0, 60), (0, -70), (128, -70), (128, -67), (3, -67), (3, 57), (128, 57)])
sketch2.addConstraint(Sketcher.Constraint("Horizontal", 0))
sketch2.addConstraint(Sketcher.Constraint("Vertical", 1))
sketch2.addConstraint(Sketcher.Constraint("Horizontal", 2))
sketch2.addConstraint(Sketcher.Constraint("Vertical", 3))
sketch2.addConstraint(Sketcher.Constraint("Horizontal", 4))
sketch2.addConstraint(Sketcher.Constraint("Vertical", 5))
sketch2.addConstraint(Sketcher.Constraint("Horizontal", 6))
sketch2.addConstraint(Sketcher.Constraint("Vertical", 7))
sketch2.addConstraint(Sketcher.Constraint("PointOnObject", 0, 2, -2))
sketch2.addConstraint(Sketcher.Constraint("Vertical", 3, 2, 6, 2))
sketch2.addConstraint(Sketcher.Constraint("Equal", 3, 7))
sketch2.addConstraint(Sketcher.Constraint("DistanceX", 0, 2, 0, 1, Q("128 mm")))
sketch2.addConstraint(Sketcher.Constraint("DistanceX", 4, 2, 4, 1, Q("125 mm")))
sketch2.addConstraint(Sketcher.Constraint("DistanceY", 1, 2, 1, 1, Q("130 mm")))
sketch2.addConstraint(Sketcher.Constraint("DistanceY", 3, 1, 3, 2, Q("3 mm")))
sketch2.addConstraint(Sketcher.Constraint("DistanceY", -1, 1, 0, 2, Q("60 mm")))
sketch2.setExpression("Constraints[19]", "Params.sketch2_width")
sketch2.setExpression("Constraints[20]", "Params.sketch2_width2")
sketch2.setExpression("Constraints[21]", "Params.sketch2_height")
sketch2.setExpression("Constraints[22]", "Params.sketch2_height2")
pad2 = body.newObject("PartDesign::Pad", "Pad001")
pad2.Profile = sketch2
pad2.setExpression("Length", "Params.pad2_length")

sketch3 = body.newObject("Sketcher::SketchObject", "Sketch002")
sketch3.AttachmentSupport = (doc.getObject("XZ_Plane"), [""])
sketch3.MapMode = "FlatFace"
sketch3.AttachmentOffset = App.Placement(Vector(0, 0, 65), App.Rotation())
sketch3.addGeometry(Part.Circle(Vector(53, 7, 0), Vector(0, 0, 1), 0.8), False)
sketch3.addConstraint(Sketcher.Constraint("Diameter", 0, Q("1.5 mm")))
sketch3.addConstraint(Sketcher.Constraint("DistanceX", -1, 1, 0, 3, Q("53 mm")))
sketch3.addConstraint(Sketcher.Constraint("DistanceY", -1, 1, 0, 3, Q("7 mm")))
sketch3.setExpression("Constraints[0]", "Params.sketch3_diameter")
pocket1 = body.newObject("PartDesign::Pocket", "Pocket")
pocket1.Profile = sketch3
pocket1.setExpression("Length", "Params.pocket1_length")
pocket1.Midplane = True

sketch4 = body.newObject("Sketcher::SketchObject", "Sketch003")
sketch4.AttachmentSupport = (doc.getObject("XZ_Plane"), [""])
sketch4.MapMode = "FlatFace"
sketch4.AttachmentOffset = App.Placement(Vector(0, 0, -55), App.Rotation())
sketch4.addGeometry(Part.Circle(Vector(25, 9, 0), Vector(0, 0, 1), 0.8), False)
sketch4.addGeometry(Part.Circle(Vector(95, 9, 0), Vector(0, 0, 1), 0.8), False)
sketch4.addGeometry(Part.Circle(Vector(55, 9, 0), Vector(0, 0, 1), 0.8), False)
sketch4.addGeometry(Part.Circle(Vector(125, 9, 0), Vector(0, 0, 1), 0.8), False)
sketch4.addConstraint(Sketcher.Constraint("Equal", 0, 1))
sketch4.addConstraint(Sketcher.Constraint("Equal", 1, 2))
sketch4.addConstraint(Sketcher.Constraint("Equal", 2, 3))
sketch4.addConstraint(Sketcher.Constraint("Horizontal", 0, 3, 1, 3))
sketch4.addConstraint(Sketcher.Constraint("Horizontal", 1, 3, 2, 3))
sketch4.addConstraint(Sketcher.Constraint("Horizontal", 2, 3, 3, 3))
sketch4.addConstraint(Sketcher.Constraint("Diameter", 0, Q("1.5 mm")))
sketch4.addConstraint(Sketcher.Constraint("DistanceX", -1, 1, 0, 3, Q("25 mm")))
sketch4.addConstraint(Sketcher.Constraint("DistanceY", -1, 1, 0, 3, Q("9 mm")))
sketch4.addConstraint(Sketcher.Constraint("DistanceX", -1, 1, 1, 3, Q("95 mm")))
sketch4.addConstraint(Sketcher.Constraint("DistanceX", -1, 1, 2, 3, Q("55 mm")))
sketch4.addConstraint(Sketcher.Constraint("DistanceX", -1, 1, 3, 3, Q("125 mm")))
sketch4.setExpression("Constraints[6]", "Params.sketch4_diameter")
pocket2 = body.newObject("PartDesign::Pocket", "Pocket001")
pocket2.Profile = sketch4
pocket2.setExpression("Length", "Params.pocket2_length")
pocket2.Midplane = True

sketch5 = body.newObject("Sketcher::SketchObject", "Sketch004")
sketch5.AttachmentSupport = (doc.getObject("YZ_Plane"), [""])
sketch5.MapMode = "FlatFace"
sketch5.addGeometry(Part.Circle(Vector(45, 8, 0), Vector(0, 0, 1), 1.8), False)
sketch5.addGeometry(Part.Circle(Vector(-5, 8, 0), Vector(0, 0, 1), 1.8), False)
sketch5.addGeometry(Part.Circle(Vector(-55, 8, 0), Vector(0, 0, 1), 1.8), False)
sketch5.addConstraint(Sketcher.Constraint("Equal", 0, 1))
sketch5.addConstraint(Sketcher.Constraint("Equal", 1, 2))
sketch5.addConstraint(Sketcher.Constraint("Horizontal", 0, 3, 1, 3))
sketch5.addConstraint(Sketcher.Constraint("Horizontal", 1, 3, 2, 3))
sketch5.addConstraint(Sketcher.Constraint("Diameter", 0, Q("3.5 mm")))
sketch5.addConstraint(Sketcher.Constraint("DistanceX", -1, 1, 0, 3, Q("45 mm")))
sketch5.addConstraint(Sketcher.Constraint("DistanceY", -1, 1, 0, 3, Q("8 mm")))
sketch5.addConstraint(Sketcher.Constraint("DistanceX", 1, 3, -1, 1, Q("5 mm")))
sketch5.addConstraint(Sketcher.Constraint("DistanceX", 2, 3, -1, 1, Q("55 mm")))
sketch5.setExpression("Constraints[4]", "Params.sketch5_diameter")
pocket3 = body.newObject("PartDesign::Pocket", "Pocket002")
pocket3.Profile = sketch5
pocket3.setExpression("Length", "Params.pocket3_length")
pocket3.Reversed = True

sketch6 = body.newObject("Sketcher::SketchObject", "Sketch005")
sketch6.AttachmentSupport = (doc.getObject("XY_Plane"), [""])
sketch6.MapMode = "FlatFace"
sketch6.AttachmentOffset = App.Placement(Vector(0, 0, 3.5), App.Rotation())
add_polygon(sketch6, [(134, 52), (84, 52), (84, 40), (73, 40), (73, -42), (84, -42), (84, -53), (134, -53), (134, -42), (140, -42), (140, 40), (134, 40)])
sketch6.addConstraint(Sketcher.Constraint("Horizontal", 0))
sketch6.addConstraint(Sketcher.Constraint("Vertical", 1))
sketch6.addConstraint(Sketcher.Constraint("Horizontal", 2))
sketch6.addConstraint(Sketcher.Constraint("Vertical", 3))
sketch6.addConstraint(Sketcher.Constraint("Horizontal", 4))
sketch6.addConstraint(Sketcher.Constraint("Vertical", 5))
sketch6.addConstraint(Sketcher.Constraint("Horizontal", 6))
sketch6.addConstraint(Sketcher.Constraint("Vertical", 7))
sketch6.addConstraint(Sketcher.Constraint("Horizontal", 8))
sketch6.addConstraint(Sketcher.Constraint("Vertical", 9))
sketch6.addConstraint(Sketcher.Constraint("Horizontal", 10))
sketch6.addConstraint(Sketcher.Constraint("Vertical", 11))
sketch6.addConstraint(Sketcher.Constraint("Horizontal", 4, 2, 7, 2))
sketch6.addConstraint(Sketcher.Constraint("Horizontal", 2, 2, 9, 2))
sketch6.addConstraint(Sketcher.Constraint("Vertical", 1, 2, 4, 2))
sketch6.addConstraint(Sketcher.Constraint("Vertical", 7, 2, 10, 2))
sketch6.addConstraint(Sketcher.Constraint("DistanceX", 2, 2, 2, 1, Q("11 mm")))
sketch6.addConstraint(Sketcher.Constraint("DistanceY", 1, 2, 1, 1, Q("12 mm")))
sketch6.addConstraint(Sketcher.Constraint("DistanceX", 0, 2, 0, 1, Q("50.6 mm")))
sketch6.addConstraint(Sketcher.Constraint("DistanceY", 3, 2, 3, 1, Q("82.5 mm")))
sketch6.addConstraint(Sketcher.Constraint("DistanceY", 5, 2, 5, 1, Q("10.5 mm")))
sketch6.addConstraint(Sketcher.Constraint("DistanceY", -1, 1, 0, 2, Q("52 mm")))
sketch6.addConstraint(Sketcher.Constraint("DistanceX", -1, 1, 8, 2, Q("140 mm")))
sketch6.addConstraint(Sketcher.Constraint("DistanceX", 8, 1, 8, 2, Q("5.85 mm")))
sketch6.setExpression("Constraints[28]", "Params.sketch6_width")
sketch6.setExpression("Constraints[29]", "Params.sketch6_height")
sketch6.setExpression("Constraints[30]", "Params.sketch6_width2")
sketch6.setExpression("Constraints[31]", "Params.sketch6_height2")
sketch6.setExpression("Constraints[32]", "Params.sketch6_height3")
pocket4 = body.newObject("PartDesign::Pocket", "Pocket003")
pocket4.Profile = sketch6
pocket4.setExpression("Length", "Params.pocket4_length")

doc.recompute()
